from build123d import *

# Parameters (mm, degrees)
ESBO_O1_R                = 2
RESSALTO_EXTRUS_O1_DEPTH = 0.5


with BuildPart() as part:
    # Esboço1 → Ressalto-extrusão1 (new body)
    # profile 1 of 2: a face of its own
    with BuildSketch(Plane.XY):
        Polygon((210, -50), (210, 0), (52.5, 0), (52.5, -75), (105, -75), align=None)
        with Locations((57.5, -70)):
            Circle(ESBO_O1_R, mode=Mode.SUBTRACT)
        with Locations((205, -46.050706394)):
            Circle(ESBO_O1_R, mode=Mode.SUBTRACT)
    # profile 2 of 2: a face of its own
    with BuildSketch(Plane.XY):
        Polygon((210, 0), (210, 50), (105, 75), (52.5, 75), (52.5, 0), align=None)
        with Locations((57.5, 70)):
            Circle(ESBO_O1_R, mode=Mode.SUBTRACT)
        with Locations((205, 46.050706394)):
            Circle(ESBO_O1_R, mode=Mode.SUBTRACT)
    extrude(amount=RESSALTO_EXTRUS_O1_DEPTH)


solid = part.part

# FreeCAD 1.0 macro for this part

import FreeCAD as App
import Part
import Sketcher

V = App.Vector


def add_polygon(sketch, points):
    """Adds a closed chain of lines whose ends are joined by coincident constraints."""
    first, n = sketch.GeometryCount, len(points)
    for a, b in zip(points, points[1:] + points[:1]):
        sketch.addGeometry(Part.LineSegment(App.Vector(*a, 0), App.Vector(*b, 0)), False)
    for i in range(n):
        sketch.addConstraint(Sketcher.Constraint("Coincident", first + i, 2, first + (i + 1) % n, 1))

doc = App.newDocument("Part")
body = doc.addObject("PartDesign::Body", "Body")

# Sketch on XY plane
sketch1 = doc.addObject("Sketcher::SketchObject", "Sketch")
body.addObject(sketch1)
sketch1.AttachmentSupport = (doc.XY_Plane, [""])
sketch1.MapMode = "FlatFace"
add_polygon(sketch1, [(210, -50), (210, 50), (105, 75), (52.5, 75), (52.5, -75), (105, -75)])  # lines 0-5
sketch1.addGeometry(Part.Circle(V(57.5, -70, 0), V(0, 0, 1), 2), False)  # 6
sketch1.addGeometry(Part.Circle(V(205, -46.1, 0), V(0, 0, 1), 2), False)  # 7
sketch1.addGeometry(Part.Circle(V(57.5, 70, 0), V(0, 0, 1), 2), False)  # 8
sketch1.addGeometry(Part.Circle(V(205, 46.1, 0), V(0, 0, 1), 2), False)  # 9
sketch1.addConstraint([
    Sketcher.Constraint("Vertical", 0),
    Sketcher.Constraint("Horizontal", 2),
    Sketcher.Constraint("Vertical", 3),
    Sketcher.Constraint("Horizontal", 4),
    Sketcher.Constraint("Equal", 6, 7),
    Sketcher.Constraint("Equal", 7, 8),
    Sketcher.Constraint("Equal", 8, 9),
    Sketcher.Constraint("Symmetric", 6, 3, 8, 3, -1),
    Sketcher.Constraint("Symmetric", 7, 3, 9, 3, -1),
    Sketcher.Constraint("Symmetric", 1, 2, 4, 2, -1),
    Sketcher.Constraint("Equal", 1, 5),
    Sketcher.Constraint("Diameter", 6, 4.0),
    Sketcher.Constraint("DistanceY", 0, 1, 0, 2, 100.0),
    Sketcher.Constraint("DistanceY", 3, 2, 3, 1, 150.0),
    Sketcher.Constraint("DistanceX", 2, 2, 2, 1, 52.5),
    Sketcher.Constraint("DistanceY", 6, 3, -1, 1, 70.0),
    Sketcher.Constraint("DistanceX", -1, 1, 7, 3, 205.0),
    Sketcher.Constraint("DistanceX", -1, 1, 0, 2, 210.0),
    Sketcher.Constraint("DistanceX", -1, 1, 1, 2, 105.0),
    Sketcher.Constraint("DistanceX", 2, 2, 8, 3, 5.0),
    Sketcher.Constraint("DistanceY", 7, 3, -1, 1, 46.050706),
])
pad1 = doc.addObject("PartDesign::Pad", "Pad")
body.addObject(pad1)
pad1.Profile = sketch1
pad1.Length = 0.5

doc.recompute()
